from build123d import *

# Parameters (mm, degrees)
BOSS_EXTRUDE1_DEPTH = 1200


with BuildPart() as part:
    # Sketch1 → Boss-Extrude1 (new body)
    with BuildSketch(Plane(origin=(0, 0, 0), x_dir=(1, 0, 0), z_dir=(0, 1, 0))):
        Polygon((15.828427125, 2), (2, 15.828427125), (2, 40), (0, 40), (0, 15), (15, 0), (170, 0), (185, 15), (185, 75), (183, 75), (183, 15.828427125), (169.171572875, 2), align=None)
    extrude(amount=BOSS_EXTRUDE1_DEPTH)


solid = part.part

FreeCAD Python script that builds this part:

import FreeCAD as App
import Part
import Sketcher
from FreeCAD import Vector
Q = App.Units.Quantity

doc = App.newDocument("Part")
body = doc.addObject("PartDesign::Body", "Body")

sketch1 = body.newObject("Sketcher::SketchObject", "Sketch")
sketch1.AttachmentSupport = (doc.getObject("XZ_Plane"), [""])
sketch1.MapMode = "FlatFace"
sketch1.addGeometry([
    Part.LineSegment(Vector(15.8, -2, 0), Vector(2, -15.8, 0)),
    Part.LineSegment(Vector(2, -15.8, 0), Vector(2, -40, 0)),
    Part.LineSegment(Vector(2, -40, 0), Vector(0, -40, 0)),
    Part.LineSegment(Vector(0, -40, 0), Vector(0, -15, 0)),
    Part.LineSegment(Vector(0, -15, 0), Vector(15, 0, 0)),
    Part.LineSegment(Vector(15, 0, 0), Vector(170, 0, 0)),
    Part.LineSegment(Vector(170, 0, 0), Vector(185, -15, 0)),
    Part.LineSegment(Vector(185, -15, 0), Vector(185, -75, 0)),
    Part.LineSegment(Vector(185, -75, 0), Vector(183, -75, 0)),
    Part.LineSegment(Vector(183, -75, 0), Vector(183, -15.8, 0)),
    Part.LineSegment(Vector(183, -15.8, 0), Vector(169.2, -2, 0)),
    Part.LineSegment(Vector(169.2, -2, 0), Vector(15.8, -2, 0)),
], False)
sketch1.addConstraint([
    Sketcher.Constraint("Coincident", 0, 2, 1, 1),
    Sketcher.Constraint("Coincident", 1, 2, 2, 1),
    Sketcher.Constraint("Coincident", 2, 2, 3, 1),
    Sketcher.Constraint("Coincident", 3, 2, 4, 1),
    Sketcher.Constraint("Coincident", 4, 2, 5, 1),
    Sketcher.Constraint("Coincident", 5, 2, 6, 1),
    Sketcher.Constraint("Coincident", 6, 2, 7, 1),
    Sketcher.Constraint("Coincident", 7, 2, 8, 1),
    Sketcher.Constraint("Coincident", 8, 2, 9, 1),
    Sketcher.Constraint("Coincident", 9, 2, 10, 1),
    Sketcher.Constraint("Coincident", 10, 2, 11, 1),
    Sketcher.Constraint("Coincident", 11, 2, 0, 1),
    Sketcher.Constraint("Vertical", 1),
    Sketcher.Constraint("Horizontal", 2),
    Sketcher.Constraint("Vertical", 3),
    Sketcher.Constraint("Horizontal", 5),
    Sketcher.Constraint("Vertical", 7),
    Sketcher.Constraint("Horizontal", 8),
    Sketcher.Constraint("Vertical", 9),
    Sketcher.Constraint("Horizontal", 11),
    Sketcher.Constraint("PointOnObject", 2, 2, -2),
    Sketcher.Constraint("PointOnObject", 4, 2, -1),
    Sketcher.Constraint("Parallel", 0, 4),
    Sketcher.Constraint("Perpendicular", 4, 6),
    Sketcher.Constraint("Parallel", 6, 10),
    Sketcher.Constraint("Horizontal", 3, 2, 6, 2),
    Sketcher.Constraint("Horizontal", 0, 2, 9, 2),
    Sketcher.Constraint("Equal", 2, 8),
    Sketcher.Constraint("Equal", 4, 6),
    Sketcher.Constraint("DistanceX", 2, 2, 2, 1, Q("2 mm")),
    Sketcher.Constraint("DistanceX", 5, 1, 5, 2, Q("155 mm")),
    Sketcher.Constraint("DistanceY", 3, 1, 3, 2, Q("25 mm")),
    Sketcher.Constraint("DistanceY", 7, 2, 7, 1, Q("60 mm")),
    Sketcher.Constraint("DistanceY", 1, 2, -1, 1, Q("40 mm")),
    Sketcher.Constraint("DistanceY", 10, 2, -1, 1, Q("2 mm")),
    Sketcher.Constraint("Distance", 0, Q("19.556349 mm")),
])
pad1 = body.newObject("PartDesign::Pad", "Pad")
pad1.Profile = sketch1
pad1.Length = 1200
pad1.Reversed = True

doc.recompute()
